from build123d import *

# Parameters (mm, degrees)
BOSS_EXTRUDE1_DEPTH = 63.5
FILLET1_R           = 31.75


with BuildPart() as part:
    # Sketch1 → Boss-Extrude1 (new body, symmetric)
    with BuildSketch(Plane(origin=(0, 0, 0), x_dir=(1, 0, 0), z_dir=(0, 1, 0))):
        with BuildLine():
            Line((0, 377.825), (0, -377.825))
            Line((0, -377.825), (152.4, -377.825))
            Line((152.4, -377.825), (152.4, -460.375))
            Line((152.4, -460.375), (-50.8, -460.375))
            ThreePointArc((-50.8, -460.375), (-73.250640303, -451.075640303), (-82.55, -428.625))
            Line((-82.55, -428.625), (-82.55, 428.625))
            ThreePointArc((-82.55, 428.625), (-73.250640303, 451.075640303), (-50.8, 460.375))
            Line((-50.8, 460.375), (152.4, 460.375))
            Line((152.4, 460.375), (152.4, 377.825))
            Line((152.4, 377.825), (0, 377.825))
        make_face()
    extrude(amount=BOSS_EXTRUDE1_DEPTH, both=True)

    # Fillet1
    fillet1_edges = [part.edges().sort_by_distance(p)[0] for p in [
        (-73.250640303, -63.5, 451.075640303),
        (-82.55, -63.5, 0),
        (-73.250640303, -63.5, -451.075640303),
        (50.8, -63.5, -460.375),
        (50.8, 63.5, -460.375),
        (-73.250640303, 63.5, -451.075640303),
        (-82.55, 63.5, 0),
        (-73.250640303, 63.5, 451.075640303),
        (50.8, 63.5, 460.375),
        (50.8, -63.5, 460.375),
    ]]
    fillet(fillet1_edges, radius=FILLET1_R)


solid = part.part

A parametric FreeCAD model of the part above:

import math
import FreeCAD as App
import Part
import Sketcher

V = App.Vector
Q = App.Units.Quantity


def edges_at(feature, points):
    """Names of the edges that pass closest to the given points."""
    edges = feature.Shape.Edges
    near = lambda p: min(range(len(edges)), key=lambda i: edges[i].distToShape(Part.Vertex(*p))[0])
    return sorted({f"Edge{near(p) + 1}" for p in points})

doc = App.newDocument("Part")
body = doc.addObject("PartDesign::Body", "Body")

# Sketch on XZ plane
sketch1 = doc.addObject("Sketcher::SketchObject", "Sketch")
body.addObject(sketch1)
sketch1.AttachmentSupport = (doc.XZ_Plane, [""])
sketch1.MapMode = "FlatFace"
sketch1.addGeometry(Part.LineSegment(V(0, 378, 0), V(0, -378, 0)), False)
sketch1.addGeometry(Part.LineSegment(V(0, -378, 0), V(152, -378, 0)), False)
sketch1.addGeometry(Part.LineSegment(V(152, -378, 0), V(152, -460, 0)), False)
sketch1.addGeometry(Part.LineSegment(V(152, -460, 0), V(-51, -460, 0)), False)
sketch1.addGeometry(Part.ArcOfCircle(Part.Circle(V(-51, -429, 0), V(0, 0, 1), 32), math.radians(180), math.radians(270)), False)
sketch1.addGeometry(Part.LineSegment(V(-83, -429, 0), V(-83, 429, 0)), False)
sketch1.addGeometry(Part.ArcOfCircle(Part.Circle(V(-51, 429, 0), V(0, 0, 1), 32), math.radians(90), math.radians(180)), False)
sketch1.addGeometry(Part.LineSegment(V(-51, 460, 0), V(152, 460, 0)), False)
sketch1.addGeometry(Part.LineSegment(V(152, 460, 0), V(152, 378, 0)), False)
sketch1.addGeometry(Part.LineSegment(V(152, 378, 0), V(0, 378, 0)), False)
sketch1.addConstraint(Sketcher.Constraint("Coincident", 0, 2, 1, 1))
sketch1.addConstraint(Sketcher.Constraint("Coincident", 1, 2, 2, 1))
sketch1.addConstraint(Sketcher.Constraint("Coincident", 2, 2, 3, 1))
sketch1.addConstraint(Sketcher.Constraint("Tangent", 3, 2, 4, 2))
sketch1.addConstraint(Sketcher.Constraint("Tangent", 4, 1, 5, 1))
sketch1.addConstraint(Sketcher.Constraint("Tangent", 5, 2, 6, 2))
sketch1.addConstraint(Sketcher.Constraint("Tangent", 6, 1, 7, 1))
sketch1.addConstraint(Sketcher.Constraint("Coincident", 7, 2, 8, 1))
sketch1.addConstraint(Sketcher.Constraint("Coincident", 8, 2, 9, 1))
sketch1.addConstraint(Sketcher.Constraint("Coincident", 9, 2, 0, 1))
sketch1.addConstraint(Sketcher.Constraint("Vertical", 0))
sketch1.addConstraint(Sketcher.Constraint("Horizontal", 1))
sketch1.addConstraint(Sketcher.Constraint("Vertical", 2))
sketch1.addConstraint(Sketcher.Constraint("Horizontal", 3))
sketch1.addConstraint(Sketcher.Constraint("Vertical", 5))
sketch1.addConstraint(Sketcher.Constraint("Horizontal", 7))
sketch1.addConstraint(Sketcher.Constraint("Vertical", 8))
sketch1.addConstraint(Sketcher.Constraint("Horizontal", 9))
sketch1.addConstraint(Sketcher.Constraint("Equal", 4, 6))
sketch1.addConstraint(Sketcher.Constraint("Symmetric", 0, 2, 9, 2, -1, 1))
sketch1.addConstraint(Sketcher.Constraint("Symmetric", 2, 2, 7, 2, -1))
sketch1.addConstraint(Sketcher.Constraint("DistanceX", 1, 1, 1, 2, Q("6 in")))
sketch1.addConstraint(Sketcher.Constraint("DistanceX", 3, 2, 3, 1, Q("8 in")))
sketch1.addConstraint(Sketcher.Constraint("Radius", 4, Q("1.25 in")))
sketch1.addConstraint(Sketcher.Constraint("DistanceY", 4, 3, 0, 2, Q("2 in")))
sketch1.addConstraint(Sketcher.Constraint("DistanceY", 2, 2, 6, 3, Q("35 in")))
pad1 = doc.addObject("PartDesign::Pad", "Pad")
body.addObject(pad1)
pad1.Profile = sketch1
pad1.Length = Q("5 in")
pad1.Midplane = True
doc.recompute()

fillet = doc.addObject("PartDesign::Fillet", "Fillet")
body.addObject(fillet)
fillet.Base = (pad1, edges_at(pad1, [
    (-73.251, -63.5, 451.076),
    (-82.55, -63.5, 0),
    (-73.251, -63.5, -451.076),
    (50.8, -63.5, -460.375),
    (50.8, 63.5, -460.375),
    (-73.251, 63.5, -451.076),
    (-82.55, 63.5, 0),
    (-73.251, 63.5, 451.076),
    (50.8, 63.5, 460.375),
    (50.8, -63.5, 460.375),
]))
fillet.Radius = Q("1.25 in")

doc.recompute()
